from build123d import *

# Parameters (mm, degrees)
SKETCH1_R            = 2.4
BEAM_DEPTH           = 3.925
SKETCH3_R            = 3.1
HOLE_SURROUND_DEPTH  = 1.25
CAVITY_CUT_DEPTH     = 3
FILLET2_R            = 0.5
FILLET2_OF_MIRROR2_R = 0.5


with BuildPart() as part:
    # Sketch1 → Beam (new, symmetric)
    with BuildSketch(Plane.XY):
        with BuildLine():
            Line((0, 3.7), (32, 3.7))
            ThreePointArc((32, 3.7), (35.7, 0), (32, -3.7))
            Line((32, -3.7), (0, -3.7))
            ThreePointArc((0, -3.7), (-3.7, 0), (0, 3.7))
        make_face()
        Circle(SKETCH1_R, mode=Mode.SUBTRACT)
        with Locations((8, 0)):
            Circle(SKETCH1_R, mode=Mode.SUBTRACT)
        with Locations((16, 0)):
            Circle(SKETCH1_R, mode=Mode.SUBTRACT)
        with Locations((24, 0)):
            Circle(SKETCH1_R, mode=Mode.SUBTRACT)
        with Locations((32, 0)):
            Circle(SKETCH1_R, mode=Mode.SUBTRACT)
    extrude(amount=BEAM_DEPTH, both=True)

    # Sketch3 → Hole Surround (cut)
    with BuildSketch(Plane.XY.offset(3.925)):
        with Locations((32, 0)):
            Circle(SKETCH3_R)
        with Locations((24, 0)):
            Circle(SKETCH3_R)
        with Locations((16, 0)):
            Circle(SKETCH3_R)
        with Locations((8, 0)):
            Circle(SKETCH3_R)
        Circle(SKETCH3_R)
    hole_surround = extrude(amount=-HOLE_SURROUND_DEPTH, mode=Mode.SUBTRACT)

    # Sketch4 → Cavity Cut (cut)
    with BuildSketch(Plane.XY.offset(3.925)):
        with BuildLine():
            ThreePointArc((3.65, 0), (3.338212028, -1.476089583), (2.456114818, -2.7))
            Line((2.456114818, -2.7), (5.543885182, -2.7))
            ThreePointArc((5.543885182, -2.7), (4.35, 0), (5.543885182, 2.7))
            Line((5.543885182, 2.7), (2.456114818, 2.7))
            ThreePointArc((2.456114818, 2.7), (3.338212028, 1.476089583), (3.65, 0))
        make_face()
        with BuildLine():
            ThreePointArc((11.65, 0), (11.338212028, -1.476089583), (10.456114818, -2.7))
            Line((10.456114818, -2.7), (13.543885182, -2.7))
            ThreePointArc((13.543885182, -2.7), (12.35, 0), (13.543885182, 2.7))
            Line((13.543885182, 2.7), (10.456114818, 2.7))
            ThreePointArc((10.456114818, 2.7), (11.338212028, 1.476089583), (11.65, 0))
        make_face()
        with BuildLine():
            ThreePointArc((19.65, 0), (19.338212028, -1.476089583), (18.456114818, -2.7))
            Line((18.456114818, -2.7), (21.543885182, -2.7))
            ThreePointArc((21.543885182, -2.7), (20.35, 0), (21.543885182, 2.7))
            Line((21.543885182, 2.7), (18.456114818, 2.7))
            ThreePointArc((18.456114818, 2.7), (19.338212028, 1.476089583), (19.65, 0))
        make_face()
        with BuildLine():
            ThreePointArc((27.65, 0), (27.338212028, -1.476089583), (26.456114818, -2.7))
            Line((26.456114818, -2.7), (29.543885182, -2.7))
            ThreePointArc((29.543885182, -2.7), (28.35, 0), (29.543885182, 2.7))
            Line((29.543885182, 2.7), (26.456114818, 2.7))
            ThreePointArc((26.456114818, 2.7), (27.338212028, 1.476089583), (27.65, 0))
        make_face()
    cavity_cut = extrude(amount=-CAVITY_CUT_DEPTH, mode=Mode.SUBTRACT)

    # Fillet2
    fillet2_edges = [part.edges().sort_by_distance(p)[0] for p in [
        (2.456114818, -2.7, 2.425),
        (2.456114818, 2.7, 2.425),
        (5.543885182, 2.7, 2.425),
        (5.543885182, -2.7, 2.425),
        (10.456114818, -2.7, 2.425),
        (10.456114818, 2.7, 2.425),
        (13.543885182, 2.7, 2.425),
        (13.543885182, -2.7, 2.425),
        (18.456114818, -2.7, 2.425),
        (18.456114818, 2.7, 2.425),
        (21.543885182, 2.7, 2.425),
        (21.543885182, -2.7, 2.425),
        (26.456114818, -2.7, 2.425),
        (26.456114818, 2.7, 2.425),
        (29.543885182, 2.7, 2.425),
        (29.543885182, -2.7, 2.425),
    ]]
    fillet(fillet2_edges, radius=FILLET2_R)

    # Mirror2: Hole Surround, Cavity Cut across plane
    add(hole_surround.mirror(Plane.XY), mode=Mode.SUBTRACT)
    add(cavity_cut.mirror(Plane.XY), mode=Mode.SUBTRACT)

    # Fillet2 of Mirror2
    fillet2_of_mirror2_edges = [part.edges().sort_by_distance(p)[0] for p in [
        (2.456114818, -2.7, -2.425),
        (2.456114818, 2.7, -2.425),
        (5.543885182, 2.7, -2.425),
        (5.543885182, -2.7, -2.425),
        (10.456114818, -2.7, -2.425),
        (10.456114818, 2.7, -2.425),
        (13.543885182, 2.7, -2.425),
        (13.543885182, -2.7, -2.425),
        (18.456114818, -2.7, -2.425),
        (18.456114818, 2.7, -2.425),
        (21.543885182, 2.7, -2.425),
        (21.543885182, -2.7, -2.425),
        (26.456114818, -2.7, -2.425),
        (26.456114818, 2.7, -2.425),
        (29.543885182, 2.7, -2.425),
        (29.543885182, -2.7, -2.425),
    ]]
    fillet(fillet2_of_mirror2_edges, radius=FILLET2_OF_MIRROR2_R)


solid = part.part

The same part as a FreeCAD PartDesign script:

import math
import FreeCAD as App
import Part
import Sketcher
Q = App.Units.Quantity


def edges_at(feature, points):
    """Names of the edges that pass closest to the given points."""
    edges = feature.Shape.Edges
    near = lambda p: min(range(len(edges)), key=lambda i: edges[i].distToShape(Part.Vertex(*p))[0])
    return sorted({f"Edge{near(p) + 1}" for p in points})

doc = App.newDocument("Part")
body = doc.addObject("PartDesign::Body", "Body")

# Sketch on XY plane
sketch1 = body.newObject("Sketcher::SketchObject", "Sketch")
sketch1.AttachmentSupport = (doc.getObject("XY_Plane"), [""])
sketch1.MapMode = "FlatFace"
sketch1.addGeometry([
    Part.LineSegment(App.Vector(32, 3.7, 0), App.Vector(0, 3.7, 0)),  # 0
    Part.ArcOfCircle(Part.Circle(App.Vector(0, 0, 0), App.Vector(0, 0, 1), 3.7), math.radians(90), math.radians(270)),  # 1
    Part.LineSegment(App.Vector(0, -3.7, 0), App.Vector(32, -3.7, 0)),  # 2
    Part.ArcOfCircle(Part.Circle(App.Vector(32, 0, 0), App.Vector(0, 0, 1), 3.7), math.radians(-90), math.radians(90)),  # 3
    Part.Circle(App.Vector(32, 0, 0), App.Vector(0, 0, 1), 2.4),  # 4
    Part.Circle(App.Vector(24, 0, 0), App.Vector(0, 0, 1), 2.4),  # 5
    Part.Circle(App.Vector(16, 0, 0), App.Vector(0, 0, 1), 2.4),  # 6
    Part.Circle(App.Vector(8, 0, 0), App.Vector(0, 0, 1), 2.4),  # 7
    Part.Circle(App.Vector(0, 0, 0), App.Vector(0, 0, 1), 2.4),  # 8
], False)
sketch1.addConstraint([
    Sketcher.Constraint("Tangent", 0, 2, 1, 1),
    Sketcher.Constraint("Tangent", 1, 2, 2, 1),
    Sketcher.Constraint("Tangent", 2, 2, 3, 1),
    Sketcher.Constraint("Tangent", 3, 2, 0, 1),
    Sketcher.Constraint("Horizontal", 0),
    Sketcher.Constraint("Horizontal", 2),
    Sketcher.Constraint("Coincident", 1, 3, -1, 1),
    Sketcher.Constraint("Coincident", 8, 3, -1, 1),
    Sketcher.Constraint("Coincident", 4, 3, 3, 3),
    Sketcher.Constraint("Equal", 4, 5),
    Sketcher.Constraint("Equal", 5, 6),
    Sketcher.Constraint("Equal", 6, 7),
    Sketcher.Constraint("Equal", 7, 8),
    Sketcher.Constraint("PointOnObject", 5, 3, -1),
    Sketcher.Constraint("PointOnObject", 6, 3, -1),
    Sketcher.Constraint("PointOnObject", 7, 3, -1),
    Sketcher.Constraint("Diameter", 4, Q("4.8 mm")),
    Sketcher.Constraint("Radius", 1, Q("3.7 mm")),
    Sketcher.Constraint("DistanceX", 0, 2, 0, 1, Q("32 mm")),
    Sketcher.Constraint("DistanceX", -1, 1, 5, 3, Q("24 mm")),
    Sketcher.Constraint("DistanceX", -1, 1, 6, 3, Q("16 mm")),
    Sketcher.Constraint("DistanceX", -1, 1, 7, 3, Q("8 mm")),
])
pad1 = body.newObject("PartDesign::Pad", "Pad")
pad1.Profile = sketch1
pad1.Length = 7.85
pad1.Midplane = True

# Sketch on XY plane
sketch2 = body.newObject("Sketcher::SketchObject", "Sketch001")
sketch2.AttachmentSupport = (doc.getObject("XY_Plane"), [""])
sketch2.MapMode = "FlatFace"
sketch2.AttachmentOffset = App.Placement(App.Vector(0, 0, 3.925), App.Rotation())
sketch2.addGeometry([
    Part.Circle(App.Vector(32, 0, 0), App.Vector(0, 0, 1), 3.1),  # 0
    Part.Circle(App.Vector(24, 0, 0), App.Vector(0, 0, 1), 3.1),  # 1
    Part.Circle(App.Vector(16, 0, 0), App.Vector(0, 0, 1), 3.1),  # 2
    Part.Circle(App.Vector(8, 0, 0), App.Vector(0, 0, 1), 3.1),  # 3
    Part.Circle(App.Vector(0, 0, 0), App.Vector(0, 0, 1), 3.1),  # 4
], False)
sketch2.addConstraint([
    Sketcher.Constraint("Coincident", 4, 3, -1, 1),
    Sketcher.Constraint("Equal", 0, 1),
    Sketcher.Constraint("Equal", 1, 2),
    Sketcher.Constraint("Equal", 2, 3),
    Sketcher.Constraint("Equal", 3, 4),
    Sketcher.Constraint("PointOnObject", 0, 3, -1),
    Sketcher.Constraint("PointOnObject", 1, 3, -1),
    Sketcher.Constraint("PointOnObject", 2, 3, -1),
    Sketcher.Constraint("PointOnObject", 3, 3, -1),
    Sketcher.Constraint("Diameter", 0, Q("6.2 mm")),
    Sketcher.Constraint("DistanceX", -1, 1, 0, 3, Q("32 mm")),
    Sketcher.Constraint("DistanceX", -1, 1, 1, 3, Q("24 mm")),
    Sketcher.Constraint("DistanceX", -1, 1, 2, 3, Q("16 mm")),
    Sketcher.Constraint("DistanceX", -1, 1, 3, 3, Q("8 mm")),
])
pocket1 = body.newObject("PartDesign::Pocket", "Pocket")
pocket1.Profile = sketch2
pocket1.Length = 1.25

# Sketch on XY plane
sketch3 = body.newObject("Sketcher::SketchObject", "Sketch002")
sketch3.AttachmentSupport = (doc.getObject("XY_Plane"), [""])
sketch3.MapMode = "FlatFace"
sketch3.AttachmentOffset = App.Placement(App.Vector(0, 0, 3.925), App.Rotation())
sketch3.addGeometry([
    Part.ArcOfCircle(Part.Circle(App.Vector(0, 0, 0), App.Vector(0, 0, 1), 3.65), math.radians(-47.708083), math.radians(0)),  # 0
    Part.LineSegment(App.Vector(2.456115, -2.7, 0), App.Vector(5.543885, -2.7, 0)),  # 1
    Part.ArcOfCircle(Part.Circle(App.Vector(8, 0, 0), App.Vector(0, 0, 1), 3.65), math.radians(132.291917), math.radians(227.708083)),  # 2
    Part.LineSegment(App.Vector(5.543885, 2.7, 0), App.Vector(2.456115, 2.7, 0)),  # 3
    Part.ArcOfCircle(Part.Circle(App.Vector(0, 0, 0), App.Vector(0, 0, 1), 3.65), math.radians(0), math.radians(47.708083)),  # 4
    Part.ArcOfCircle(Part.Circle(App.Vector(8, 0, 0), App.Vector(0, 0, 1), 3.65), math.radians(-47.708083), math.radians(0)),  # 5
    Part.LineSegment(App.Vector(10.456115, -2.7, 0), App.Vector(13.543885, -2.7, 0)),  # 6
    Part.ArcOfCircle(Part.Circle(App.Vector(16, 0, 0), App.Vector(0, 0, 1), 3.65), math.radians(132.291917), math.radians(227.708083)),  # 7
    Part.LineSegment(App.Vector(13.543885, 2.7, 0), App.Vector(10.456115, 2.7, 0)),  # 8
    Part.ArcOfCircle(Part.Circle(App.Vector(8, 0, 0), App.Vector(0, 0, 1), 3.65), math.radians(0), math.radians(47.708083)),  # 9
    Part.ArcOfCircle(Part.Circle(App.Vector(16, 0, 0), App.Vector(0, 0, 1), 3.65), math.radians(-47.708083), math.radians(0)),  # 10
    Part.LineSegment(App.Vector(18.456115, -2.7, 0), App.Vector(21.543885, -2.7, 0)),  # 11
    Part.ArcOfCircle(Part.Circle(App.Vector(24, 0, 0), App.Vector(0, 0, 1), 3.65), math.radians(132.291917), math.radians(227.708083)),  # 12
    Part.LineSegment(App.Vector(21.543885, 2.7, 0), App.Vector(18.456115, 2.7, 0)),  # 13
    Part.ArcOfCircle(Part.Circle(App.Vector(16, 0, 0), App.Vector(0, 0, 1), 3.65), math.radians(0), math.radians(47.708083)),  # 14
    Part.ArcOfCircle(Part.Circle(App.Vector(24, 0, 0), App.Vector(0, 0, 1), 3.65), math.radians(-47.708083), math.radians(0)),  # 15
    Part.LineSegment(App.Vector(26.456115, -2.7, 0), App.Vector(29.543885, -2.7, 0)),  # 16
    Part.ArcOfCircle(Part.Circle(App.Vector(32, 0, 0), App.Vector(0, 0, 1), 3.65), math.radians(132.291917), math.radians(227.708083)),  # 17
    Part.LineSegment(App.Vector(29.543885, 2.7, 0), App.Vector(26.456115, 2.7, 0)),  # 18
    Part.ArcOfCircle(Part.Circle(App.Vector(24, 0, 0), App.Vector(0, 0, 1), 3.65), math.radians(0), math.radians(47.708083)),  # 19
], False)
sketch3.addConstraint([
    Sketcher.Constraint("Coincident", 0, 1, 1, 1),
    Sketcher.Constraint("Coincident", 1, 2, 2, 2),
    Sketcher.Constraint("Coincident", 2, 1, 3, 1),
    Sketcher.Constraint("Coincident", 3, 2, 4, 2),
    Sketcher.Constraint("Tangent", 4, 1, 0, 2),
    Sketcher.Constraint("Coincident", 5, 1, 6, 1),
    Sketcher.Constraint("Coincident", 6, 2, 7, 2),
    Sketcher.Constraint("Coincident", 7, 1, 8, 1),
    Sketcher.Constraint("Coincident", 8, 2, 9, 2),
    Sketcher.Constraint("Tangent", 9, 1, 5, 2),
    Sketcher.Constraint("Coincident", 10, 1, 11, 1),
    Sketcher.Constraint("Coincident", 11, 2, 12, 2),
    Sketcher.Constraint("Coincident", 12, 1, 13, 1),
    Sketcher.Constraint("Coincident", 13, 2, 14, 2),
    Sketcher.Constraint("Tangent", 14, 1, 10, 2),
    Sketcher.Constraint("Coincident", 15, 1, 16, 1),
    Sketcher.Constraint("Coincident", 16, 2, 17, 2),
    Sketcher.Constraint("Coincident", 17, 1, 18, 1),
    Sketcher.Constraint("Coincident", 18, 2, 19, 2),
    Sketcher.Constraint("Tangent", 19, 1, 15, 2),
    Sketcher.Constraint("Horizontal", 1),
    Sketcher.Constraint("Horizontal", 3),
    Sketcher.Constraint("Horizontal", 6),
    Sketcher.Constraint("Horizontal", 8),
    Sketcher.Constraint("Horizontal", 11),
    Sketcher.Constraint("Horizontal", 13),
    Sketcher.Constraint("Horizontal", 16),
    Sketcher.Constraint("Horizontal", 18),
    Sketcher.Constraint("Coincident", 0, 3, -1, 1),
    Sketcher.Constraint("Coincident", 5, 3, 2, 3),
    Sketcher.Constraint("Coincident", 10, 3, 7, 3),
    Sketcher.Constraint("Coincident", 15, 3, 12, 3),
    Sketcher.Constraint("Equal", 0, 2),
    Sketcher.Constraint("Equal", 2, 4),
    Sketcher.Constraint("Equal", 4, 5),
    Sketcher.Constraint("Equal", 5, 7),
    Sketcher.Constraint("Equal", 7, 9),
    Sketcher.Constraint("Equal", 9, 10),
    Sketcher.Constraint("Equal", 10, 12),
    Sketcher.Constraint("Equal", 12, 14),
    Sketcher.Constraint("Equal", 14, 15),
    Sketcher.Constraint("Equal", 15, 17),
    Sketcher.Constraint("Equal", 17, 19),
    Sketcher.Constraint("Symmetric", 1, 2, 2, 1, -1),
    Sketcher.Constraint("Symmetric", 6, 2, 7, 1, -1),
    Sketcher.Constraint("Symmetric", 11, 2, 12, 1, -1),
    Sketcher.Constraint("Symmetric", 16, 2, 17, 1, -1),
    Sketcher.Constraint("PointOnObject", 4, 1, -1),
    Sketcher.Constraint("PointOnObject", 9, 1, -1),
    Sketcher.Constraint("PointOnObject", 14, 1, -1),
    Sketcher.Constraint("PointOnObject", 19, 1, -1),
    Sketcher.Constraint("Horizontal", 1, 2, 5, 1),
    Sketcher.Constraint("Horizontal", 6, 2, 10, 1),
    Sketcher.Constraint("Horizontal", 11, 2, 15, 1),
    Sketcher.Constraint("Equal", 3, 6),
    Sketcher.Constraint("Equal", 8, 11),
    Sketcher.Constraint("Equal", 13, 16),
    Sketcher.Constraint("Radius", 0, Q("3.65 mm")),
    Sketcher.Constraint("DistanceX", -1, 1, 2, 3, Q("8 mm")),
    Sketcher.Constraint("DistanceY", 0, 1, -1, 1, Q("2.7 mm")),
])
pocket2 = body.newObject("PartDesign::Pocket", "Pocket001")
pocket2.Profile = sketch3
pocket2.Length = 3
doc.recompute()

fillet = body.newObject("PartDesign::Fillet", "Fillet")
fillet.Base = (pocket2, edges_at(pocket2, [
    (2.456, -2.7, 2.425),
    (2.456, 2.7, 2.425),
    (5.544, 2.7, 2.425),
    (5.544, -2.7, 2.425),
    (10.456, -2.7, 2.425),
    (10.456, 2.7, 2.425),
    (13.544, 2.7, 2.425),
    (13.544, -2.7, 2.425),
    (18.456, -2.7, 2.425),
    (18.456, 2.7, 2.425),
    (21.544, 2.7, 2.425),
    (21.544, -2.7, 2.425),
    (26.456, -2.7, 2.425),
    (26.456, 2.7, 2.425),
    (29.544, 2.7, 2.425),
    (29.544, -2.7, 2.425),
]))
fillet.Radius = 0.5
doc.recompute()

mirrored = body.newObject("PartDesign::Mirrored", "Mirrored")
mirrored.Originals = [pocket1, pocket2]
mirrored.MirrorPlane = (doc.getObject("XY_Plane"), [""])
body.Tip = mirrored
doc.recompute()

fillet2 = body.newObject("PartDesign::Fillet", "Fillet001")
fillet2.Base = (mirrored, edges_at(mirrored, [
    (2.456, -2.7, -2.425),
    (2.456, 2.7, -2.425),
    (5.544, 2.7, -2.425),
    (5.544, -2.7, -2.425),
    (10.456, -2.7, -2.425),
    (10.456, 2.7, -2.425),
    (13.544, 2.7, -2.425),
    (13.544, -2.7, -2.425),
    (18.456, -2.7, -2.425),
    (18.456, 2.7, -2.425),
    (21.544, 2.7, -2.425),
    (21.544, -2.7, -2.425),
    (26.456, -2.7, -2.425),
    (26.456, 2.7, -2.425),
    (29.544, 2.7, -2.425),
    (29.544, -2.7, -2.425),
]))
fillet2.Radius = 0.5

doc.recompute()
